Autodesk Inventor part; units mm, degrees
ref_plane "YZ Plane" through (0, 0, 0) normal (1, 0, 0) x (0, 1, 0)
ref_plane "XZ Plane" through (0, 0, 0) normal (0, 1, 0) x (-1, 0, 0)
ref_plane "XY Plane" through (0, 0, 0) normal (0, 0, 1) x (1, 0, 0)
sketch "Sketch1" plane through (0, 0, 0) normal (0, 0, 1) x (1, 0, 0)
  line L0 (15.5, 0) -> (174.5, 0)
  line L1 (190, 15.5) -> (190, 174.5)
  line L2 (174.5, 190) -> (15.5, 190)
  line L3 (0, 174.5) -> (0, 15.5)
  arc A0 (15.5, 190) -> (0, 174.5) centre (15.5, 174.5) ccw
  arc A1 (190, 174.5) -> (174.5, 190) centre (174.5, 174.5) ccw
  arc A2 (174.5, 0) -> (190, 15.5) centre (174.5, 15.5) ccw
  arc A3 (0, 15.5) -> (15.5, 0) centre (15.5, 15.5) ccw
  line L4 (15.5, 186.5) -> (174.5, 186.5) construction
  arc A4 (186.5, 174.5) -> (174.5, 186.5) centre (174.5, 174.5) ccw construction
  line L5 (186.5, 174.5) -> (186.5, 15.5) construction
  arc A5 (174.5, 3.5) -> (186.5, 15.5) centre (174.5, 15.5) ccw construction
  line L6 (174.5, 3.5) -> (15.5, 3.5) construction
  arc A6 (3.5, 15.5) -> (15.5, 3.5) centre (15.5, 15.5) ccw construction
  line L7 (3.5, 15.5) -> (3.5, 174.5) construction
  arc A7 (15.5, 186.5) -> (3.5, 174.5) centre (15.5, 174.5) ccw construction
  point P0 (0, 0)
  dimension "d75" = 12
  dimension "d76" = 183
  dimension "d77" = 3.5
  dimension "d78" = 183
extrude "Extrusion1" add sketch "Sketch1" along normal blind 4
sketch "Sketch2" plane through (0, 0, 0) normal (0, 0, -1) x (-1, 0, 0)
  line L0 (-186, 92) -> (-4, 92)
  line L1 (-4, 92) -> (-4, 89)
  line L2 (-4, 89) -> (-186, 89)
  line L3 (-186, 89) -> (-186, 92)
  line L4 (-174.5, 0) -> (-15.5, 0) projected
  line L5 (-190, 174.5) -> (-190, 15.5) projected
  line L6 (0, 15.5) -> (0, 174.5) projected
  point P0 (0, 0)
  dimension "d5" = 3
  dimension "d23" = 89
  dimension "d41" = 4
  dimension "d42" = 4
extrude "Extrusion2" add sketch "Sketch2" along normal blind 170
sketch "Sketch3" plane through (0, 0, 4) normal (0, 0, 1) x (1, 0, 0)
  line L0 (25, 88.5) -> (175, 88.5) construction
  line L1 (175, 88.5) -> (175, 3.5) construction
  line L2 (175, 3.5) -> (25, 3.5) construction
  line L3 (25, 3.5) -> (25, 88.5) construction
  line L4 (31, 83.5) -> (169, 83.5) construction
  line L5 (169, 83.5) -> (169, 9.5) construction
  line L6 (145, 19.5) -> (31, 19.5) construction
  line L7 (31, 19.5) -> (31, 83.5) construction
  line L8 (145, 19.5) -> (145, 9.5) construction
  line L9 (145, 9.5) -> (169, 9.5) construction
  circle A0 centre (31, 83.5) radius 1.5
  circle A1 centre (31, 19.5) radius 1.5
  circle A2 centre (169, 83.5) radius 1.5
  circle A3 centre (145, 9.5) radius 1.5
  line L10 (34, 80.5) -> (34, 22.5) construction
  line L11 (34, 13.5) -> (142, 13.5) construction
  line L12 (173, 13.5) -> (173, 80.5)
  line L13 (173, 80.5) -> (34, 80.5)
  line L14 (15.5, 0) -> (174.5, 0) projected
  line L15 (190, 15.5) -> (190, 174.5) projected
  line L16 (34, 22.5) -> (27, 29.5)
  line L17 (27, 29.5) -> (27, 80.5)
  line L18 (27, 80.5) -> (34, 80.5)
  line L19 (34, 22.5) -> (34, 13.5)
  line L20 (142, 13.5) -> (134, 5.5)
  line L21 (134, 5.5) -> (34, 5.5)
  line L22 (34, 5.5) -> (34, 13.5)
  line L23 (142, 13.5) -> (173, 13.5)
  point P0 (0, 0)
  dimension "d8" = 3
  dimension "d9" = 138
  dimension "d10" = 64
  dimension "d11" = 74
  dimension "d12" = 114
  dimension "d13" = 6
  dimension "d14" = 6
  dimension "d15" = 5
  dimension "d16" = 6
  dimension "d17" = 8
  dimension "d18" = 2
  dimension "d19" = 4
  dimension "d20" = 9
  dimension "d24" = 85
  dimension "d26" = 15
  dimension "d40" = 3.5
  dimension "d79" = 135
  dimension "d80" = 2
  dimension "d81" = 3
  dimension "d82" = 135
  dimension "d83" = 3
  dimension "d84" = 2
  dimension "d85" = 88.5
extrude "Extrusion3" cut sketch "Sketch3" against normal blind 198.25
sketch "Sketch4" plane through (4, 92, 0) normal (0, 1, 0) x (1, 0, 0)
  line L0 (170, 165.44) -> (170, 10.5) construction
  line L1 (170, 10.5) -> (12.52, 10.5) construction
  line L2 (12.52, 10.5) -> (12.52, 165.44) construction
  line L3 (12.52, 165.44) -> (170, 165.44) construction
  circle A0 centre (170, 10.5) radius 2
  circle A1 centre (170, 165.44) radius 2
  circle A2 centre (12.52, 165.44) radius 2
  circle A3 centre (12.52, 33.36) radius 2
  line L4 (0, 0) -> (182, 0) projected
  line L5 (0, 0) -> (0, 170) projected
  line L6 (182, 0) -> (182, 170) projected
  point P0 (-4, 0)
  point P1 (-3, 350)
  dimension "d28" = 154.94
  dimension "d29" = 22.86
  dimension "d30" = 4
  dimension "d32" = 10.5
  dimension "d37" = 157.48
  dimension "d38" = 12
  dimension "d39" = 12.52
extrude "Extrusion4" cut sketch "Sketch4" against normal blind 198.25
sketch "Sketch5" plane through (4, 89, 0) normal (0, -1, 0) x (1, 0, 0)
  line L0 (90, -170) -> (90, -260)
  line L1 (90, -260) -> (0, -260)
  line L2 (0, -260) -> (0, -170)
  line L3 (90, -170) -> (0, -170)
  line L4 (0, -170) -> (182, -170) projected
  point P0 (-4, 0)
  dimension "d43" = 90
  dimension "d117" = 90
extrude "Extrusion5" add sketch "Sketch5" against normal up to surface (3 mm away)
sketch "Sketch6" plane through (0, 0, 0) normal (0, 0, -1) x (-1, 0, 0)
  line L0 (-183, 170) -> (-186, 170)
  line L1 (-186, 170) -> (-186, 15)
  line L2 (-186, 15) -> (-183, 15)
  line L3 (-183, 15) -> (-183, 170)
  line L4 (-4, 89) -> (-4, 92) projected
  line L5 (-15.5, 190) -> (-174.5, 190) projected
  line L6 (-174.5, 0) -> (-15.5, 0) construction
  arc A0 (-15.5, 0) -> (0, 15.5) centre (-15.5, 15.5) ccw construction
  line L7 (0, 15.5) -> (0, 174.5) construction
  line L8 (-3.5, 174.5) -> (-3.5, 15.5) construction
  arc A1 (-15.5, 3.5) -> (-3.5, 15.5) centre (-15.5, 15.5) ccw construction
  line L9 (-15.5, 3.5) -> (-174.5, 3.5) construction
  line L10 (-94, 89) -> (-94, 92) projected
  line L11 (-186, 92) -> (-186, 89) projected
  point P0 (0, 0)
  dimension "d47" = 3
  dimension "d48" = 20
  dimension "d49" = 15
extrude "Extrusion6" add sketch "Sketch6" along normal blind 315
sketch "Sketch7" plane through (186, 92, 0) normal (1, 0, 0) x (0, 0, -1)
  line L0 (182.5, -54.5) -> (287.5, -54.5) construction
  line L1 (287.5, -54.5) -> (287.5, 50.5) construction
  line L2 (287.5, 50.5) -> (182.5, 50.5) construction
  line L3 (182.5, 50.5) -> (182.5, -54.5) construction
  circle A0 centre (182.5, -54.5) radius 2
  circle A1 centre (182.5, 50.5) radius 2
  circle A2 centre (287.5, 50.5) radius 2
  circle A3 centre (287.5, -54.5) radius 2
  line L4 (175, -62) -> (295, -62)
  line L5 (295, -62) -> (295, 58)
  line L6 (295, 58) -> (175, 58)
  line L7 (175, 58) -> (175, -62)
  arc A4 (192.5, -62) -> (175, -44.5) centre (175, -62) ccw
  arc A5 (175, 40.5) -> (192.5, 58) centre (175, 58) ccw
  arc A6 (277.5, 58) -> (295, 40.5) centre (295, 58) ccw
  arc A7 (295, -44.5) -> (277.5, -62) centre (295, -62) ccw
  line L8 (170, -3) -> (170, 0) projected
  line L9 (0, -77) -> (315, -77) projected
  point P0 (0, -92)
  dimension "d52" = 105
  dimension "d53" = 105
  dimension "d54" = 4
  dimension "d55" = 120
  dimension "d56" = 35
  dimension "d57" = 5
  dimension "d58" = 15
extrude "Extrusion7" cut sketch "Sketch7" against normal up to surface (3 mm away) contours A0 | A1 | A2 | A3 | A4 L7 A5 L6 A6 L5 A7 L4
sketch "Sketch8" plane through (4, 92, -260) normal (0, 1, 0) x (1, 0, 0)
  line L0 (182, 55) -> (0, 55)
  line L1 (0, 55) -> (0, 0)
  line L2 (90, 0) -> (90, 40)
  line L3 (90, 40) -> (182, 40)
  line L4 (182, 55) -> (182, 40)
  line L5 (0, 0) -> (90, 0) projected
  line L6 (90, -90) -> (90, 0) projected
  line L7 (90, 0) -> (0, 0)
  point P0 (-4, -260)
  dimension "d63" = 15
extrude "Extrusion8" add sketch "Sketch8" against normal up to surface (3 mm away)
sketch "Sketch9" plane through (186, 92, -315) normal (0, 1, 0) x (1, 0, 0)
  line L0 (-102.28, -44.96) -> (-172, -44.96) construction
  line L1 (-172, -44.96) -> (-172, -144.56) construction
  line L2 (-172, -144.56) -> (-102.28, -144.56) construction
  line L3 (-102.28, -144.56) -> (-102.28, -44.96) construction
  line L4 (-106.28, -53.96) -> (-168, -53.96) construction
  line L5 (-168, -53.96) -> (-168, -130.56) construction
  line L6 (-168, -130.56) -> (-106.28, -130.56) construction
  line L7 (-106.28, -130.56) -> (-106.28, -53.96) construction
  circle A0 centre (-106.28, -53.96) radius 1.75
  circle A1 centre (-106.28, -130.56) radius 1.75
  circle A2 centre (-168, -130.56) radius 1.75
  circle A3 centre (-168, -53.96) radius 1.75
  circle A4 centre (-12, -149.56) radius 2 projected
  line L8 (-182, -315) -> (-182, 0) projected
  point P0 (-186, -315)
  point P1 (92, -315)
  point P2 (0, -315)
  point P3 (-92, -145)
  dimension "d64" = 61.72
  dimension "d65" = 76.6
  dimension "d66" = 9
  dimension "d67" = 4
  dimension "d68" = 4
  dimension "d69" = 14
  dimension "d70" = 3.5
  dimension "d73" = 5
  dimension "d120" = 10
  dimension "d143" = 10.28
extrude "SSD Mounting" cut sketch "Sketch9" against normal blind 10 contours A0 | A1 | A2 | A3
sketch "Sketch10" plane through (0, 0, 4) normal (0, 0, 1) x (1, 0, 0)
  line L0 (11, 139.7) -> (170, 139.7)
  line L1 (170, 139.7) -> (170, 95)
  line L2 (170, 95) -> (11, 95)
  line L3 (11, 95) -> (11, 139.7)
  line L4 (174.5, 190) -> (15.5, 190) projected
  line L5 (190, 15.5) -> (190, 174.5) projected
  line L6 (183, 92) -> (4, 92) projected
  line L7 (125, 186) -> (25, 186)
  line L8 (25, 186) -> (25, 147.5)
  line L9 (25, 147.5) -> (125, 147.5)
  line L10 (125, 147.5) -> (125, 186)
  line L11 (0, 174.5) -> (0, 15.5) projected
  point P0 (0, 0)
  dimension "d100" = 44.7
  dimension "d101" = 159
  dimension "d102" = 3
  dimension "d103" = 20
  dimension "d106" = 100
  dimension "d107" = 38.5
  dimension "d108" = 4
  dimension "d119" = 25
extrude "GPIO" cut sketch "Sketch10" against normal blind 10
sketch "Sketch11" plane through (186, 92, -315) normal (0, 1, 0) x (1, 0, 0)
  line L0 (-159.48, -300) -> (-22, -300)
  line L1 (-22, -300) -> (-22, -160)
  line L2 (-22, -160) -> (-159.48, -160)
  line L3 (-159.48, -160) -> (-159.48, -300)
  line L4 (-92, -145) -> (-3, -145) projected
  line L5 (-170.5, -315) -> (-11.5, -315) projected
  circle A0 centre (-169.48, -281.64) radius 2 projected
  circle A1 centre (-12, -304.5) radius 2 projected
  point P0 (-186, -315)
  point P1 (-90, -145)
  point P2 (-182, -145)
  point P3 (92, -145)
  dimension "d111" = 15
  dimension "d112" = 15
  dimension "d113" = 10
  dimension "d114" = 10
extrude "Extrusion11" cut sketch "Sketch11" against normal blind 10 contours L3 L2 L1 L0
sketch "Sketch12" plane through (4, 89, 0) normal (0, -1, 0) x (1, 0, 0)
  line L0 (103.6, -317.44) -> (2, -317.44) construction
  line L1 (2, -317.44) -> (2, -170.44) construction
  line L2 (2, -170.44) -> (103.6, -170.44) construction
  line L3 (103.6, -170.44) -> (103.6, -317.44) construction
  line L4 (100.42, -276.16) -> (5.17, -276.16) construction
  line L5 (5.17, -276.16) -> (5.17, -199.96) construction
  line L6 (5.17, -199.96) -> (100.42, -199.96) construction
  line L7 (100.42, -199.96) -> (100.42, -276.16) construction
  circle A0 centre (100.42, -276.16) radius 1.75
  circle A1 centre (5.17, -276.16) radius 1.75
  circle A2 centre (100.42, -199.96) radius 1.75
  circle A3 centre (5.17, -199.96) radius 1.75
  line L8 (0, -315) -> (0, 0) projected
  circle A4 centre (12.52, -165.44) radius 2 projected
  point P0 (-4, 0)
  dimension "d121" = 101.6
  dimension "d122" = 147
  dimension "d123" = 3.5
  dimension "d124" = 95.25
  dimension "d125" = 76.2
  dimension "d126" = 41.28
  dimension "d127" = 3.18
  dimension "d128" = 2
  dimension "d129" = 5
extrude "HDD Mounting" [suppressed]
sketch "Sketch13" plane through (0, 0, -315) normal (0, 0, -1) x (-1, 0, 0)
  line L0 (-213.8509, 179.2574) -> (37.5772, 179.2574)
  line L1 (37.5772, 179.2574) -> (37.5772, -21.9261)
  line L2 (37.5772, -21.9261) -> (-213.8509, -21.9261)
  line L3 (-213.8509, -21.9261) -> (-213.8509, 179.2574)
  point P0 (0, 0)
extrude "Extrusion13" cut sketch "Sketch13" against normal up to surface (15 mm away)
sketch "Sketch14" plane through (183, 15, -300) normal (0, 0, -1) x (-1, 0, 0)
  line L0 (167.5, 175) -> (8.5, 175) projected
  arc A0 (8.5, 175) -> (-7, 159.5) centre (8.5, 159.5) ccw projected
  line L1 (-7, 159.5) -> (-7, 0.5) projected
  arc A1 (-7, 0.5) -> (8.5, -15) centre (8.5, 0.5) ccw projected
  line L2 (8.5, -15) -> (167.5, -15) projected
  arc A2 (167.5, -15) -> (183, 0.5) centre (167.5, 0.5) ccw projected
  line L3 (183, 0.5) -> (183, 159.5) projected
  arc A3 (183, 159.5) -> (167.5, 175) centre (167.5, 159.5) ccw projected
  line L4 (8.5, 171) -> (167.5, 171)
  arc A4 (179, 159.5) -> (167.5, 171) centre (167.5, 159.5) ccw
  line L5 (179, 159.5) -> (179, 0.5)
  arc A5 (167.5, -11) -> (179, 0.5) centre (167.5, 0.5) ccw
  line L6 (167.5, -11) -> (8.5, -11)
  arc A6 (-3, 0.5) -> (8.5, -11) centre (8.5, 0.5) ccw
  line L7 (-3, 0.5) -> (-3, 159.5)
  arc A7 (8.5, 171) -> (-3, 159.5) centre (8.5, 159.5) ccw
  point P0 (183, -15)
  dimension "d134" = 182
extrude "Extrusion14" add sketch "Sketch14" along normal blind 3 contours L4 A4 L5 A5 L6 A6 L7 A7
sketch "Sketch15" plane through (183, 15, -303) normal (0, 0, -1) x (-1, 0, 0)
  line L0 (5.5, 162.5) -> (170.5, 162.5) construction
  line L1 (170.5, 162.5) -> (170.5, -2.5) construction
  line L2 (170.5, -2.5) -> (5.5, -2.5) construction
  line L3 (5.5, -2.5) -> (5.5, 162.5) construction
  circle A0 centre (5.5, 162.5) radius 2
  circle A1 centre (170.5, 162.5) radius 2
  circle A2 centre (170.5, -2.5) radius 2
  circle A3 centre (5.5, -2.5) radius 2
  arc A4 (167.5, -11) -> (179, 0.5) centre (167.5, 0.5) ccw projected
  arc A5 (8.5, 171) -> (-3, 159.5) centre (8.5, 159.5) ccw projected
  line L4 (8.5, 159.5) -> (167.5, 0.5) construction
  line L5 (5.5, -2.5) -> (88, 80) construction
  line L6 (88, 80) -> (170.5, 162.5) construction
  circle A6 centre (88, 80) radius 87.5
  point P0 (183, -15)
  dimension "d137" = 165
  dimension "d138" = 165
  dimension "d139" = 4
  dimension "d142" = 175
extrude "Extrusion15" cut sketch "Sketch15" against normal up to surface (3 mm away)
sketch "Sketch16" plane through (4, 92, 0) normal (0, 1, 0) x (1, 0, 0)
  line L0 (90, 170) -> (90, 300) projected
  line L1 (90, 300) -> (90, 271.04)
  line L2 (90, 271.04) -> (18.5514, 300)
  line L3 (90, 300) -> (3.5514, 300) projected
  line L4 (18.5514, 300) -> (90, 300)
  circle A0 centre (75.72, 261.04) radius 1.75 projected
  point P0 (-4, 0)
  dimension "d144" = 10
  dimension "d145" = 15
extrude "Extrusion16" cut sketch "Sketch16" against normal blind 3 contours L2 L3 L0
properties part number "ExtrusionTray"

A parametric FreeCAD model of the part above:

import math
import FreeCAD as App
import Part
import Sketcher

V = App.Vector

doc = App.newDocument("Part")
body = doc.addObject("PartDesign::Body", "Body")

# Sketch on XY plane
sketch1 = body.newObject("Sketcher::SketchObject", "Sketch")
sketch1.AttachmentSupport = (doc.getObject("XY_Plane"), [""])
sketch1.MapMode = "FlatFace"
sketch1.addGeometry([
    Part.ArcOfCircle(Part.Circle(V(16, 16, 0), V(0, 0, 1), 16), math.radians(180), math.radians(270)),  # 0
    Part.LineSegment(V(16, 0, 0), V(174, 0, 0)),  # 1
    Part.ArcOfCircle(Part.Circle(V(174, 16, 0), V(0, 0, 1), 16), math.radians(-90), math.radians(0)),  # 2
    Part.LineSegment(V(190, 16, 0), V(190, 174, 0)),  # 3
    Part.ArcOfCircle(Part.Circle(V(174, 174, 0), V(0, 0, 1), 16), math.radians(0), math.radians(90)),  # 4
    Part.LineSegment(V(174, 190, 0), V(16, 190, 0)),  # 5
    Part.ArcOfCircle(Part.Circle(V(16, 174, 0), V(0, 0, 1), 16), math.radians(90), math.radians(180)),  # 6
    Part.LineSegment(V(0, 174, 0), V(0, 16, 0)),  # 7
], False)
sketch1.addConstraint([
    Sketcher.Constraint("Tangent", 0, 2, 1, 1),
    Sketcher.Constraint("Tangent", 1, 2, 2, 1),
    Sketcher.Constraint("Tangent", 2, 2, 3, 1),
    Sketcher.Constraint("Tangent", 3, 2, 4, 1),
    Sketcher.Constraint("Tangent", 4, 2, 5, 1),
    Sketcher.Constraint("Tangent", 5, 2, 6, 1),
    Sketcher.Constraint("Tangent", 6, 2, 7, 1),
    Sketcher.Constraint("Tangent", 7, 2, 0, 1),
    Sketcher.Constraint("Horizontal", 1),
    Sketcher.Constraint("Vertical", 3),
    Sketcher.Constraint("Horizontal", 5),
    Sketcher.Constraint("Vertical", 7),
    Sketcher.Constraint("Equal", 0, 2),
    Sketcher.Constraint("Equal", 2, 4),
    Sketcher.Constraint("Equal", 4, 6),
    Sketcher.Constraint("PointOnObject", 0, 2, -1),
    Sketcher.Constraint("PointOnObject", 6, 2, -2),
    Sketcher.Constraint("Equal", 5, 3),
    Sketcher.Constraint("Radius", 0, 15.5),
    Sketcher.Constraint("DistanceX", 1, 1, 1, 2, 159.0),
])
pad1 = body.newObject("PartDesign::Pad", "Pad")
pad1.Profile = sketch1
pad1.Length = 4

# Sketch on XY plane
sketch2 = body.newObject("Sketcher::SketchObject", "Sketch001")
sketch2.AttachmentSupport = (doc.getObject("XY_Plane"), [""])
sketch2.MapMode = "FlatFace"
sketch2.addGeometry([
    Part.LineSegment(V(4, 92, 0), V(186, 92, 0)),
    Part.LineSegment(V(186, 92, 0), V(186, 89, 0)),
    Part.LineSegment(V(186, 89, 0), V(4, 89, 0)),
    Part.LineSegment(V(4, 89, 0), V(4, 92, 0)),
], False)
sketch2.addConstraint([
    Sketcher.Constraint("Coincident", 0, 2, 1, 1),
    Sketcher.Constraint("Coincident", 1, 2, 2, 1),
    Sketcher.Constraint("Coincident", 2, 2, 3, 1),
    Sketcher.Constraint("Coincident", 3, 2, 0, 1),
    Sketcher.Constraint("Horizontal", 0),
    Sketcher.Constraint("Vertical", 1),
    Sketcher.Constraint("Horizontal", 2),
    Sketcher.Constraint("Vertical", 3),
    Sketcher.Constraint("DistanceY", 1, 2, 1, 1, 3.0),
    Sketcher.Constraint("DistanceY", -1, 1, 1, 2, 89.0),
    Sketcher.Constraint("DistanceX", -1, 1, 2, 2, 4.0),
    Sketcher.Constraint("DistanceX", 0, 1, 0, 2, 182.0),
])
pad2 = body.newObject("PartDesign::Pad", "Pad001")
pad2.Profile = sketch2
pad2.Length = 170
pad2.Reversed = True

# Sketch on XY plane
sketch3 = body.newObject("Sketcher::SketchObject", "Sketch002")
sketch3.AttachmentSupport = (doc.getObject("XY_Plane"), [""])
sketch3.MapMode = "FlatFace"
sketch3.AttachmentOffset = App.Placement(V(0, 0, 4), App.Rotation())
sketch3.addGeometry([
    Part.Circle(V(31, 83.5, 0), V(0, 0, 1), 1.5),  # 0
    Part.Circle(V(31, 19.5, 0), V(0, 0, 1), 1.5),  # 1
    Part.Circle(V(169, 83.5, 0), V(0, 0, 1), 1.5),  # 2
    Part.Circle(V(145, 9.5, 0), V(0, 0, 1), 1.5),  # 3
    Part.LineSegment(V(142, 13.5, 0), V(173, 13.5, 0)),  # 4
    Part.LineSegment(V(173, 13.5, 0), V(173, 80.5, 0)),  # 5
    Part.LineSegment(V(173, 80.5, 0), V(27, 80.5, 0)),  # 6
    Part.LineSegment(V(27, 80.5, 0), V(27, 29.5, 0)),  # 7
    Part.LineSegment(V(27, 29.5, 0), V(34, 22.5, 0)),  # 8
    Part.LineSegment(V(34, 22.5, 0), V(34, 5.5, 0)),  # 9
    Part.LineSegment(V(34, 5.5, 0), V(134, 5.5, 0)),  # 10
    Part.LineSegment(V(134, 5.5, 0), V(142, 13.5, 0)),  # 11
], False)
sketch3.addConstraint([
    Sketcher.Constraint("Coincident", 4, 2, 5, 1),
    Sketcher.Constraint("Coincident", 5, 2, 6, 1),
    Sketcher.Constraint("Coincident", 6, 2, 7, 1),
    Sketcher.Constraint("Coincident", 7, 2, 8, 1),
    Sketcher.Constraint("Coincident", 8, 2, 9, 1),
    Sketcher.Constraint("Coincident", 9, 2, 10, 1),
    Sketcher.Constraint("Coincident", 10, 2, 11, 1),
    Sketcher.Constraint("Coincident", 11, 2, 4, 1),
    Sketcher.Constraint("Horizontal", 4),
    Sketcher.Constraint("Vertical", 5),
    Sketcher.Constraint("Horizontal", 6),
    Sketcher.Constraint("Vertical", 7),
    Sketcher.Constraint("Vertical", 9),
    Sketcher.Constraint("Horizontal", 10),
    Sketcher.Constraint("Equal", 0, 1),
    Sketcher.Constraint("Equal", 1, 2),
    Sketcher.Constraint("Equal", 2, 3),
    Sketcher.Constraint("Perpendicular", 8, 11),
    Sketcher.Constraint("Horizontal", 0, 3, 2, 3),
    Sketcher.Constraint("Vertical", 0, 3, 1, 3),
    Sketcher.Constraint("Diameter", 0, 3.0),
    Sketcher.Constraint("DistanceY", 1, 3, 0, 3, 64.0),
    Sketcher.Constraint("DistanceX", 0, 3, 2, 3, 138.0),
    Sketcher.Constraint("DistanceY", 3, 3, 2, 3, 74.0),
    Sketcher.Constraint("DistanceX", 1, 3, 3, 3, 114.0),
    Sketcher.Constraint("DistanceY", 3, 3, 4, 2, 4.0),
    Sketcher.Constraint("DistanceX", 2, 3, 4, 2, 4.0),
    Sketcher.Constraint("DistanceY", 5, 2, 2, 3, 3.0),
    Sketcher.Constraint("DistanceX", 6, 2, 0, 3, 4.0),
    Sketcher.Constraint("DistanceX", 1, 3, 8, 2, 3.0),
    Sketcher.Constraint("DistanceY", 1, 3, 8, 2, 3.0),
    Sketcher.Constraint("DistanceY", 10, 2, 3, 3, 4.0),
    Sketcher.Constraint("DistanceX", 11, 2, 3, 3, 3.0),
    Sketcher.Constraint("DistanceX", 10, 2, 11, 2, 8.0),
    Sketcher.Constraint("DistanceX", -1, 1, 0, 3, 31.0),
    Sketcher.Constraint("DistanceY", -1, 1, 0, 3, 83.5),
])
pocket1 = body.newObject("PartDesign::Pocket", "Pocket")
pocket1.Profile = sketch3
pocket1.Length = 198.25

# Sketch on XZ plane
sketch4 = body.newObject("Sketcher::SketchObject", "Sketch003")
sketch4.AttachmentSupport = (doc.getObject("XZ_Plane"), [""])
sketch4.MapMode = "FlatFace"
sketch4.AttachmentOffset = App.Placement(V(0, 0, -92), App.Rotation())
sketch4.addGeometry([
    Part.Circle(V(174, -10.5, 0), V(0, 0, 1), 2),
    Part.Circle(V(174, -165.4, 0), V(0, 0, 1), 2),
    Part.Circle(V(16.5, -165.4, 0), V(0, 0, 1), 2),
    Part.Circle(V(16.5, -33.4, 0), V(0, 0, 1), 2),
], False)
sketch4.addConstraint([
    Sketcher.Constraint("Equal", 0, 1),
    Sketcher.Constraint("Equal", 1, 2),
    Sketcher.Constraint("Equal", 2, 3),
    Sketcher.Constraint("Horizontal", 1, 3, 2, 3),
    Sketcher.Constraint("Vertical", 0, 3, 1, 3),
    Sketcher.Constraint("Vertical", 2, 3, 3, 3),
    Sketcher.Constraint("Diameter", 0, 4.0),
    Sketcher.Constraint("DistanceY", 0, 3, -1, 1, 10.5),
    Sketcher.Constraint("DistanceY", 1, 3, 0, 3, 154.94),
    Sketcher.Constraint("DistanceX", 2, 3, 1, 3, 157.48),
    Sketcher.Constraint("DistanceY", 3, 3, 0, 3, 22.86),
    Sketcher.Constraint("DistanceX", -1, 1, 0, 3, 174.0),
])
pocket2 = body.newObject("PartDesign::Pocket", "Pocket001")
pocket2.Profile = sketch4
pocket2.Length = 198.25
pocket2.Reversed = True

# Sketch on XZ plane
sketch5 = body.newObject("Sketcher::SketchObject", "Sketch004")
sketch5.AttachmentSupport = (doc.getObject("XZ_Plane"), [""])
sketch5.MapMode = "FlatFace"
sketch5.AttachmentOffset = App.Placement(V(0, 0, -89), App.Rotation())
sketch5.addGeometry([
    Part.LineSegment(V(94, -260, 0), V(94, -170, 0)),
    Part.LineSegment(V(94, -170, 0), V(4, -170, 0)),
    Part.LineSegment(V(4, -170, 0), V(4, -260, 0)),
    Part.LineSegment(V(4, -260, 0), V(94, -260, 0)),
], False)
sketch5.addConstraint([
    Sketcher.Constraint("Coincident", 0, 2, 1, 1),
    Sketcher.Constraint("Coincident", 1, 2, 2, 1),
    Sketcher.Constraint("Coincident", 2, 2, 3, 1),
    Sketcher.Constraint("Coincident", 3, 2, 0, 1),
    Sketcher.Constraint("Vertical", 0),
    Sketcher.Constraint("Horizontal", 1),
    Sketcher.Constraint("Vertical", 2),
    Sketcher.Constraint("Horizontal", 3),
    Sketcher.Constraint("Equal", 3, 0),
    Sketcher.Constraint("DistanceX", 1, 2, 1, 1, 90.0),
    Sketcher.Constraint("DistanceX", -1, 1, 0, 2, 94.0),
    Sketcher.Constraint("DistanceY", 0, 2, -1, 1, 170.0),
])
pad3 = body.newObject("PartDesign::Pad", "Pad002")
pad3.Profile = sketch5
pad3.Length = 3
pad3.Reversed = True

# Sketch on XY plane
sketch6 = body.newObject("Sketcher::SketchObject", "Sketch005")
sketch6.AttachmentSupport = (doc.getObject("XY_Plane"), [""])
sketch6.MapMode = "FlatFace"
sketch6.addGeometry([
    Part.LineSegment(V(183, 15, 0), V(183, 170, 0)),
    Part.LineSegment(V(183, 170, 0), V(186, 170, 0)),
    Part.LineSegment(V(186, 170, 0), V(186, 15, 0)),
    Part.LineSegment(V(186, 15, 0), V(183, 15, 0)),
], False)
sketch6.addConstraint([
    Sketcher.Constraint("Coincident", 0, 2, 1, 1),
    Sketcher.Constraint("Coincident", 1, 2, 2, 1),
    Sketcher.Constraint("Coincident", 2, 2, 3, 1),
    Sketcher.Constraint("Coincident", 3, 2, 0, 1),
    Sketcher.Constraint("Vertical", 0),
    Sketcher.Constraint("Horizontal", 1),
    Sketcher.Constraint("Vertical", 2),
    Sketcher.Constraint("Horizontal", 3),
    Sketcher.Constraint("DistanceX", 1, 1, 1, 2, 3.0),
    Sketcher.Constraint("DistanceY", -1, 1, 2, 2, 15.0),
    Sketcher.Constraint("DistanceY", 0, 1, 0, 2, 155.0),
    Sketcher.Constraint("DistanceX", -1, 1, 0, 2, 183.0),
])
pad4 = body.newObject("PartDesign::Pad", "Pad003")
pad4.Profile = sketch6
pad4.Length = 315
pad4.Reversed = True

# Sketch on YZ plane
sketch7 = body.newObject("Sketcher::SketchObject", "Sketch006")
sketch7.AttachmentSupport = (doc.getObject("YZ_Plane"), [""])
sketch7.MapMode = "FlatFace"
sketch7.AttachmentOffset = App.Placement(V(0, 0, 186), App.Rotation())
sketch7.addGeometry([
    Part.Circle(V(37.5, -182.5, 0), V(0, 0, 1), 2),  # 0
    Part.Circle(V(142.5, -182.5, 0), V(0, 0, 1), 2),  # 1
    Part.Circle(V(142.5, -287.5, 0), V(0, 0, 1), 2),  # 2
    Part.Circle(V(37.5, -287.5, 0), V(0, 0, 1), 2),  # 3
    Part.ArcOfCircle(Part.Circle(V(30, -175, 0), V(0, 0, 1), 17.5), math.radians(-90), math.radians(0)),  # 4
    Part.LineSegment(V(30, -192.5, 0), V(30, -277.5, 0)),  # 5
    Part.ArcOfCircle(Part.Circle(V(30, -295, 0), V(0, 0, 1), 17.5), math.radians(0), math.radians(90)),  # 6
    Part.LineSegment(V(47.5, -295, 0), V(132.5, -295, 0)),  # 7
    Part.ArcOfCircle(Part.Circle(V(150, -295, 0), V(0, 0, 1), 17.5), math.radians(90), math.radians(180)),  # 8
    Part.LineSegment(V(150, -277.5, 0), V(150, -192.5, 0)),  # 9
    Part.ArcOfCircle(Part.Circle(V(150, -175, 0), V(0, 0, 1), 17.5), math.radians(180), math.radians(270)),  # 10
    Part.LineSegment(V(132.5, -175, 0), V(47.5, -175, 0)),  # 11
], False)
sketch7.addConstraint([
    Sketcher.Constraint("Coincident", 4, 1, 5, 1),
    Sketcher.Constraint("Coincident", 5, 2, 6, 2),
    Sketcher.Constraint("Coincident", 6, 1, 7, 1),
    Sketcher.Constraint("Coincident", 7, 2, 8, 2),
    Sketcher.Constraint("Coincident", 8, 1, 9, 1),
    Sketcher.Constraint("Coincident", 9, 2, 10, 2),
    Sketcher.Constraint("Coincident", 10, 1, 11, 1),
    Sketcher.Constraint("Coincident", 11, 2, 4, 2),
    Sketcher.Constraint("Vertical", 5),
    Sketcher.Constraint("Horizontal", 7),
    Sketcher.Constraint("Vertical", 9),
    Sketcher.Constraint("Horizontal", 11),
    Sketcher.Constraint("Equal", 0, 1),
    Sketcher.Constraint("Equal", 1, 2),
    Sketcher.Constraint("Equal", 2, 3),
    Sketcher.Constraint("Equal", 4, 6),
    Sketcher.Constraint("Equal", 6, 8),
    Sketcher.Constraint("Equal", 8, 10),
    Sketcher.Constraint("Horizontal", 0, 3, 1, 3),
    Sketcher.Constraint("Horizontal", 2, 3, 3, 3),
    Sketcher.Constraint("Horizontal", 6, 3, 8, 3),
    Sketcher.Constraint("Horizontal", 4, 3, 10, 3),
    Sketcher.Constraint("Horizontal", 8, 3, 6, 1),
    Sketcher.Constraint("Horizontal", 4, 3, 10, 1),
    Sketcher.Constraint("Vertical", 1, 3, 2, 3),
    Sketcher.Constraint("Vertical", 0, 3, 3, 3),
    Sketcher.Constraint("Vertical", 4, 3, 6, 3),
    Sketcher.Constraint("Vertical", 8, 3, 10, 3),
    Sketcher.Constraint("Vertical", 6, 3, 4, 1),
    Sketcher.Constraint("Vertical", 10, 3, 8, 1),
    Sketcher.Constraint("Equal", 11, 5),
    Sketcher.Constraint("Diameter", 0, 4.0),
    Sketcher.Constraint("Radius", 4, 17.5),
    Sketcher.Constraint("DistanceX", 0, 3, 1, 3, 105.0),
    Sketcher.Constraint("DistanceY", 2, 3, 1, 3, 105.0),
    Sketcher.Constraint("DistanceY", 6, 3, 4, 3, 120.0),
    Sketcher.Constraint("DistanceX", -1, 1, 4, 3, 30.0),
    Sketcher.Constraint("DistanceY", 4, 3, -1, 1, 175.0),
    Sketcher.Constraint("DistanceY", 4, 1, 0, 3, 10.0),
    Sketcher.Constraint("DistanceX", 3, 3, 6, 1, 10.0),
])
pocket3 = body.newObject("PartDesign::Pocket", "Pocket002")
pocket3.Profile = sketch7
pocket3.Length = 3

# Sketch on XZ plane
sketch8 = body.newObject("Sketcher::SketchObject", "Sketch007")
sketch8.AttachmentSupport = (doc.getObject("XZ_Plane"), [""])
sketch8.MapMode = "FlatFace"
sketch8.AttachmentOffset = App.Placement(V(0, 0, -92), App.Rotation())
sketch8.addGeometry([
    Part.LineSegment(V(186, -300, 0), V(186, -315, 0)),  # 0
    Part.LineSegment(V(186, -315, 0), V(4, -315, 0)),  # 1
    Part.LineSegment(V(4, -315, 0), V(4, -260, 0)),  # 2
    Part.LineSegment(V(4, -260, 0), V(94, -260, 0)),  # 3
    Part.LineSegment(V(94, -260, 0), V(94, -300, 0)),  # 4
    Part.LineSegment(V(94, -300, 0), V(186, -300, 0)),  # 5
], False)
sketch8.addConstraint([
    Sketcher.Constraint("Coincident", 0, 2, 1, 1),
    Sketcher.Constraint("Coincident", 1, 2, 2, 1),
    Sketcher.Constraint("Coincident", 2, 2, 3, 1),
    Sketcher.Constraint("Coincident", 3, 2, 4, 1),
    Sketcher.Constraint("Coincident", 4, 2, 5, 1),
    Sketcher.Constraint("Coincident", 5, 2, 0, 1),
    Sketcher.Constraint("Vertical", 0),
    Sketcher.Constraint("Horizontal", 1),
    Sketcher.Constraint("Vertical", 2),
    Sketcher.Constraint("Horizontal", 3),
    Sketcher.Constraint("Vertical", 4),
    Sketcher.Constraint("Horizontal", 5),
    Sketcher.Constraint("DistanceY", 0, 2, 0, 1, 15.0),
    Sketcher.Constraint("DistanceX", 1, 2, 1, 1, 182.0),
    Sketcher.Constraint("DistanceX", 3, 1, 3, 2, 90.0),
    Sketcher.Constraint("DistanceY", 2, 1, 2, 2, 55.0),
    Sketcher.Constraint("DistanceX", -1, 1, 0, 2, 186.0),
    Sketcher.Constraint("DistanceY", 0, 2, -1, 1, 315.0),
])
pad5 = body.newObject("PartDesign::Pad", "Pad004")
pad5.Profile = sketch8
pad5.Length = 3

# Sketch on XZ plane
sketch9 = body.newObject("Sketcher::SketchObject", "Sketch008")
sketch9.AttachmentSupport = (doc.getObject("XZ_Plane"), [""])
sketch9.MapMode = "FlatFace"
sketch9.AttachmentOffset = App.Placement(V(0, 0, -92), App.Rotation())
sketch9.addGeometry([
    Part.Circle(V(79.7, -261, 0), V(0, 0, 1), 1.8),
    Part.Circle(V(79.7, -184.4, 0), V(0, 0, 1), 1.8),
    Part.Circle(V(18, -184.4, 0), V(0, 0, 1), 1.8),
    Part.Circle(V(18, -261, 0), V(0, 0, 1), 1.8),
], False)
sketch9.addConstraint([
    Sketcher.Constraint("Equal", 0, 1),
    Sketcher.Constraint("Equal", 1, 2),
    Sketcher.Constraint("Equal", 2, 3),
    Sketcher.Constraint("Horizontal", 1, 3, 2, 3),
    Sketcher.Constraint("Horizontal", 0, 3, 3, 3),
    Sketcher.Constraint("Vertical", 0, 3, 1, 3),
    Sketcher.Constraint("Vertical", 2, 3, 3, 3),
    Sketcher.Constraint("Diameter", 0, 3.5),
    Sketcher.Constraint("DistanceY", 0, 3, 1, 3, 76.6),
    Sketcher.Constraint("DistanceX", 2, 3, 1, 3, 61.72),
    Sketcher.Constraint("DistanceX", -1, 1, 2, 3, 18.0),
    Sketcher.Constraint("DistanceY", 0, 3, -1, 1, 261.04),
])
pocket4 = body.newObject("PartDesign::Pocket", "Pocket003")
pocket4.Profile = sketch9
pocket4.Length = 10
pocket4.Reversed = True

# Sketch on XY plane
sketch10 = body.newObject("Sketcher::SketchObject", "Sketch009")
sketch10.AttachmentSupport = (doc.getObject("XY_Plane"), [""])
sketch10.MapMode = "FlatFace"
sketch10.AttachmentOffset = App.Placement(V(0, 0, 4), App.Rotation())
sketch10.addGeometry([
    Part.LineSegment(V(170, 140, 0), V(11, 140, 0)),  # 0
    Part.LineSegment(V(11, 140, 0), V(11, 95, 0)),  # 1
    Part.LineSegment(V(11, 95, 0), V(170, 95, 0)),  # 2
    Part.LineSegment(V(170, 95, 0), V(170, 140, 0)),  # 3
    Part.LineSegment(V(125, 148, 0), V(125, 186, 0)),  # 4
    Part.LineSegment(V(125, 186, 0), V(25, 186, 0)),  # 5
    Part.LineSegment(V(25, 186, 0), V(25, 148, 0)),  # 6
    Part.LineSegment(V(25, 148, 0), V(125, 148, 0)),  # 7
], False)
sketch10.addConstraint([
    Sketcher.Constraint("Coincident", 0, 2, 1, 1),
    Sketcher.Constraint("Coincident", 1, 2, 2, 1),
    Sketcher.Constraint("Coincident", 2, 2, 3, 1),
    Sketcher.Constraint("Coincident", 3, 2, 0, 1),
    Sketcher.Constraint("Coincident", 4, 2, 5, 1),
    Sketcher.Constraint("Coincident", 5, 2, 6, 1),
    Sketcher.Constraint("Coincident", 6, 2, 7, 1),
    Sketcher.Constraint("Coincident", 7, 2, 4, 1),
    Sketcher.Constraint("Horizontal", 0),
    Sketcher.Constraint("Vertical", 1),
    Sketcher.Constraint("Horizontal", 2),
    Sketcher.Constraint("Vertical", 3),
    Sketcher.Constraint("Vertical", 4),
    Sketcher.Constraint("Horizontal", 5),
    Sketcher.Constraint("Vertical", 6),
    Sketcher.Constraint("Horizontal", 7),
    Sketcher.Constraint("DistanceX", 0, 2, 0, 1, 159.0),
    Sketcher.Constraint("DistanceX", 5, 2, 5, 1, 100.0),
    Sketcher.Constraint("DistanceY", 1, 2, 1, 1, 44.7),
    Sketcher.Constraint("DistanceY", 4, 1, 4, 2, 38.5),
    Sketcher.Constraint("DistanceX", -1, 1, 5, 2, 25.0),
    Sketcher.Constraint("DistanceX", -1, 1, 0, 2, 11.0),
    Sketcher.Constraint("DistanceY", -1, 1, 1, 2, 95.0),
    Sketcher.Constraint("DistanceY", -1, 1, 4, 2, 186.0),
])
pocket5 = body.newObject("PartDesign::Pocket", "Pocket004")
pocket5.Profile = sketch10
pocket5.Length = 10

# Sketch on XZ plane
sketch11 = body.newObject("Sketcher::SketchObject", "Sketch010")
sketch11.AttachmentSupport = (doc.getObject("XZ_Plane"), [""])
sketch11.MapMode = "FlatFace"
sketch11.AttachmentOffset = App.Placement(V(0, 0, -92), App.Rotation())
sketch11.addGeometry([
    Part.LineSegment(V(27, -155, 0), V(27, -15, 0)),
    Part.LineSegment(V(27, -15, 0), V(164, -15, 0)),
    Part.LineSegment(V(164, -15, 0), V(164, -155, 0)),
    Part.LineSegment(V(164, -155, 0), V(27, -155, 0)),
], False)
sketch11.addConstraint([
    Sketcher.Constraint("Coincident", 0, 2, 1, 1),
    Sketcher.Constraint("Coincident", 1, 2, 2, 1),
    Sketcher.Constraint("Coincident", 2, 2, 3, 1),
    Sketcher.Constraint("Coincident", 3, 2, 0, 1),
    Sketcher.Constraint("Vertical", 0),
    Sketcher.Constraint("Horizontal", 1),
    Sketcher.Constraint("Vertical", 2),
    Sketcher.Constraint("Horizontal", 3),
    Sketcher.Constraint("DistanceY", 0, 2, -1, 1, 15.0),
    Sketcher.Constraint("DistanceY", 0, 1, 0, 2, 140.0),
    Sketcher.Constraint("DistanceX", -1, 1, 1, 2, 164.0),
    Sketcher.Constraint("DistanceX", 1, 1, 1, 2, 137.48),
])
pocket6 = body.newObject("PartDesign::Pocket", "Pocket005")
pocket6.Profile = sketch11
pocket6.Length = 10
pocket6.Reversed = True

# Sketch on XY plane
sketch12 = body.newObject("Sketcher::SketchObject", "Sketch011")
sketch12.AttachmentSupport = (doc.getObject("XY_Plane"), [""])
sketch12.MapMode = "FlatFace"
sketch12.AttachmentOffset = App.Placement(V(0, 0, -315), App.Rotation())
sketch12.addGeometry([
    Part.LineSegment(V(-38, 179, 0), V(214, 179, 0)),
    Part.LineSegment(V(214, 179, 0), V(214, -22, 0)),
    Part.LineSegment(V(214, -22, 0), V(-38, -22, 0)),
    Part.LineSegment(V(-38, -22, 0), V(-38, 179, 0)),
], False)
sketch12.addConstraint([
    Sketcher.Constraint("Coincident", 0, 2, 1, 1),
    Sketcher.Constraint("Coincident", 1, 2, 2, 1),
    Sketcher.Constraint("Coincident", 2, 2, 3, 1),
    Sketcher.Constraint("Coincident", 3, 2, 0, 1),
    Sketcher.Constraint("Horizontal", 0),
    Sketcher.Constraint("Vertical", 1),
    Sketcher.Constraint("Horizontal", 2),
    Sketcher.Constraint("Vertical", 3),
    Sketcher.Constraint("DistanceX", 0, 1, 0, 2, 251.428),
    Sketcher.Constraint("DistanceY", 1, 2, 1, 1, 201.1835),
    Sketcher.Constraint("DistanceX", -1, 1, 0, 2, 213.851),
    Sketcher.Constraint("DistanceY", 1, 2, -1, 1, 21.926),
])
pocket7 = body.newObject("PartDesign::Pocket", "Pocket006")
pocket7.Profile = sketch12
pocket7.Length = 15
pocket7.Reversed = True

# Sketch on XY plane
sketch13 = body.newObject("Sketcher::SketchObject", "Sketch012")
sketch13.AttachmentSupport = (doc.getObject("XY_Plane"), [""])
sketch13.MapMode = "FlatFace"
sketch13.AttachmentOffset = App.Placement(V(0, 0, -300), App.Rotation())
sketch13.addGeometry([
    Part.LineSegment(V(16, 186, 0), V(174, 186, 0)),  # 0
    Part.ArcOfCircle(Part.Circle(V(174, 174, 0), V(0, 0, 1), 12), math.radians(0), math.radians(90)),  # 1
    Part.LineSegment(V(186, 174, 0), V(186, 16, 0)),  # 2
    Part.ArcOfCircle(Part.Circle(V(174, 16, 0), V(0, 0, 1), 12), math.radians(-90), math.radians(0)),  # 3
    Part.LineSegment(V(174, 4, 0), V(16, 4, 0)),  # 4
    Part.ArcOfCircle(Part.Circle(V(16, 16, 0), V(0, 0, 1), 12), math.radians(180), math.radians(270)),  # 5
    Part.LineSegment(V(4, 16, 0), V(4, 174, 0)),  # 6
    Part.ArcOfCircle(Part.Circle(V(16, 174, 0), V(0, 0, 1), 12), math.radians(90), math.radians(180)),  # 7
], False)
sketch13.addConstraint([
    Sketcher.Constraint("Tangent", 0, 2, 1, 2),
    Sketcher.Constraint("Tangent", 1, 1, 2, 1),
    Sketcher.Constraint("Tangent", 2, 2, 3, 2),
    Sketcher.Constraint("Tangent", 3, 1, 4, 1),
    Sketcher.Constraint("Tangent", 4, 2, 5, 2),
    Sketcher.Constraint("Tangent", 5, 1, 6, 1),
    Sketcher.Constraint("Tangent", 6, 2, 7, 2),
    Sketcher.Constraint("Tangent", 7, 1, 0, 1),
    Sketcher.Constraint("Horizontal", 0),
    Sketcher.Constraint("Vertical", 2),
    Sketcher.Constraint("Horizontal", 4),
    Sketcher.Constraint("Vertical", 6),
    Sketcher.Constraint("Equal", 1, 3),
    Sketcher.Constraint("Equal", 3, 5),
    Sketcher.Constraint("Equal", 5, 7),
    Sketcher.Constraint("Equal", 4, 2),
    Sketcher.Constraint("Radius", 1, 11.5),
    Sketcher.Constraint("DistanceX", 0, 1, 0, 2, 159.0),
    Sketcher.Constraint("DistanceY", -1, 1, 0, 2, 186.0),
    Sketcher.Constraint("DistanceX", -1, 1, 1, 1, 186.0),
])
pad6 = body.newObject("PartDesign::Pad", "Pad005")
pad6.Profile = sketch13
pad6.Length = 3
pad6.Reversed = True

# Sketch on XY plane
sketch14 = body.newObject("Sketcher::SketchObject", "Sketch013")
sketch14.AttachmentSupport = (doc.getObject("XY_Plane"), [""])
sketch14.MapMode = "FlatFace"
sketch14.AttachmentOffset = App.Placement(V(0, 0, -303), App.Rotation())
sketch14.addGeometry([
    Part.Circle(V(177.5, 177.5, 0), V(0, 0, 1), 2),  # 0
    Part.Circle(V(12.5, 177.5, 0), V(0, 0, 1), 2),  # 1
    Part.Circle(V(12.5, 12.5, 0), V(0, 0, 1), 2),  # 2
    Part.Circle(V(177.5, 12.5, 0), V(0, 0, 1), 2),  # 3
    Part.Circle(V(95, 95, 0), V(0, 0, 1), 87.5),  # 4
], False)
sketch14.addConstraint([
    Sketcher.Constraint("Equal", 0, 1),
    Sketcher.Constraint("Equal", 1, 2),
    Sketcher.Constraint("Equal", 2, 3),
    Sketcher.Constraint("Horizontal", 0, 3, 1, 3),
    Sketcher.Constraint("Horizontal", 2, 3, 3, 3),
    Sketcher.Constraint("Vertical", 1, 3, 2, 3),
    Sketcher.Constraint("Vertical", 0, 3, 3, 3),
    Sketcher.Constraint("Diameter", 0, 4.0),
    Sketcher.Constraint("Diameter", 4, 175.0),
    Sketcher.Constraint("DistanceX", 1, 3, 0, 3, 165.0),
    Sketcher.Constraint("DistanceY", 2, 3, 1, 3, 165.0),
    Sketcher.Constraint("DistanceX", -1, 1, 4, 3, 95.0),
    Sketcher.Constraint("DistanceY", -1, 1, 4, 3, 95.0),
    Sketcher.Constraint("DistanceX", -1, 1, 0, 3, 177.5),
    Sketcher.Constraint("DistanceY", -1, 1, 0, 3, 177.5),
])
pocket8 = body.newObject("PartDesign::Pocket", "Pocket007")
pocket8.Profile = sketch14
pocket8.Length = 3
pocket8.Reversed = True

# Sketch on XZ plane
sketch15 = body.newObject("Sketcher::SketchObject", "Sketch014")
sketch15.AttachmentSupport = (doc.getObject("XZ_Plane"), [""])
sketch15.MapMode = "FlatFace"
sketch15.AttachmentOffset = App.Placement(V(0, 0, -92), App.Rotation())
sketch15.addGeometry([
    Part.LineSegment(V(23, -300, 0), V(94, -271, 0)),
    Part.LineSegment(V(94, -271, 0), V(94, -300, 0)),
    Part.LineSegment(V(94, -300, 0), V(23, -300, 0)),
], False)
sketch15.addConstraint([
    Sketcher.Constraint("Coincident", 0, 2, 1, 1),
    Sketcher.Constraint("Coincident", 1, 2, 2, 1),
    Sketcher.Constraint("Coincident", 2, 2, 0, 1),
    Sketcher.Constraint("Vertical", 1),
    Sketcher.Constraint("Horizontal", 2),
    Sketcher.Constraint("DistanceX", -1, 1, 0, 2, 94.0),
    Sketcher.Constraint("DistanceY", 1, 2, -1, 1, 300.0),
    Sketcher.Constraint("DistanceY", 1, 2, 1, 1, 28.96),
    Sketcher.Constraint("DistanceX", 2, 2, 2, 1, 71.4486),
])
pocket9 = body.newObject("PartDesign::Pocket", "Pocket008")
pocket9.Profile = sketch15
pocket9.Length = 3
pocket9.Reversed = True

doc.recompute()
